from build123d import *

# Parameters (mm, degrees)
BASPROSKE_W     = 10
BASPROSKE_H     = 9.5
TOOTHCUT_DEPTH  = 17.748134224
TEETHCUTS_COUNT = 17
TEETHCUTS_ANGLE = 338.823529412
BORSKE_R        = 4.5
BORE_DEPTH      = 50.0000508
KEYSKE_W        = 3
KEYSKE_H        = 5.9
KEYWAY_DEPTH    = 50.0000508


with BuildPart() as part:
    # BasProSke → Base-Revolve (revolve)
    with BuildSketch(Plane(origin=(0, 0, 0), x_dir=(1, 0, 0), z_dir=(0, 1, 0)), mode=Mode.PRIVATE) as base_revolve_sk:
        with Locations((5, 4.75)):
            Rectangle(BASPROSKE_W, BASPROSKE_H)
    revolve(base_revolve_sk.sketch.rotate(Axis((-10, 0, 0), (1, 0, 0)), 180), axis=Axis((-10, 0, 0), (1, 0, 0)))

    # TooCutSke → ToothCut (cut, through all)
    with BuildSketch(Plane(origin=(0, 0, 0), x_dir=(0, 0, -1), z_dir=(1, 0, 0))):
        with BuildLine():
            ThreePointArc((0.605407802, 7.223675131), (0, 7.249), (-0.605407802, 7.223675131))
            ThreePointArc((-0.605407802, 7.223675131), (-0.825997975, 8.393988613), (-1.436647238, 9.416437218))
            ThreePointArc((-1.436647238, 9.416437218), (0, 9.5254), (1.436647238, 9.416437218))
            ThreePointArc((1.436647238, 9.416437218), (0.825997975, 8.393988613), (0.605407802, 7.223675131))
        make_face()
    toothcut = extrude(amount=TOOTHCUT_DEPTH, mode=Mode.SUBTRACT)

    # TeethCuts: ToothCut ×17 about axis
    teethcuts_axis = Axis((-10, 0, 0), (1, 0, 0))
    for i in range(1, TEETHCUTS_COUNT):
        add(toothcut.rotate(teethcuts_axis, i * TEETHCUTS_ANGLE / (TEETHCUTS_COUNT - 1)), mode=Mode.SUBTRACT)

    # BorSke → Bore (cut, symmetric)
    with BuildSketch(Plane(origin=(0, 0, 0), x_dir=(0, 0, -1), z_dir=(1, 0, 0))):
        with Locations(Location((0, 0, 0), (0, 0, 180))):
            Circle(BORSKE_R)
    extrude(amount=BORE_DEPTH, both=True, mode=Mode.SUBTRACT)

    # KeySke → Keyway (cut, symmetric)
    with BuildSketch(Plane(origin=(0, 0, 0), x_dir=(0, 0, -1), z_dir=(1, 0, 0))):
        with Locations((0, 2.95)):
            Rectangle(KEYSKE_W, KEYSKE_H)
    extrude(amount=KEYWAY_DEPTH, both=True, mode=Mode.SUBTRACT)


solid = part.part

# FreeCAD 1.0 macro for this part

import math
import FreeCAD as App
import Part
import Sketcher
from FreeCAD import Vector

doc = App.newDocument("Part")
body = doc.addObject("PartDesign::Body", "Body")

# Sketch on XZ plane
sketch1 = body.newObject("Sketcher::SketchObject", "Sketch")
sketch1.AttachmentSupport = (doc.getObject("XZ_Plane"), [""])
sketch1.MapMode = "FlatFace"
sketch1.addGeometry([
    Part.LineSegment(Vector(0, -10, 0), Vector(0, 0, 0)),
    Part.LineSegment(Vector(0, 0, 0), Vector(10, 0, 0)),
    Part.LineSegment(Vector(10, 0, 0), Vector(10, -10, 0)),
    Part.LineSegment(Vector(10, -10, 0), Vector(0, -10, 0)),
], False)
sketch1.addConstraint([
    Sketcher.Constraint("Coincident", 0, 2, 1, 1),
    Sketcher.Constraint("Coincident", 1, 2, 2, 1),
    Sketcher.Constraint("Coincident", 2, 2, 3, 1),
    Sketcher.Constraint("Coincident", 3, 2, 0, 1),
    Sketcher.Constraint("Vertical", 0),
    Sketcher.Constraint("Horizontal", 1),
    Sketcher.Constraint("Vertical", 2),
    Sketcher.Constraint("Horizontal", 3),
    Sketcher.Constraint("Coincident", 0, 2, -1, 1),
    Sketcher.Constraint("DistanceX", 1, 1, 1, 2, 10.0),
    Sketcher.Constraint("DistanceY", 0, 1, 0, 2, 9.5),
])
revolution = body.newObject("PartDesign::Revolution", "Revolution")
revolution.Profile = sketch1
revolution.ReferenceAxis = (sketch1, ["H_Axis"])
revolution.Angle = 360

# Sketch on YZ plane
sketch2 = body.newObject("Sketcher::SketchObject", "Sketch001")
sketch2.AttachmentSupport = (doc.getObject("YZ_Plane"), [""])
sketch2.MapMode = "FlatFace"
sketch2.addGeometry([
    Part.ArcOfCircle(Part.Circle(Vector(0, 0, 0), Vector(0, 0, 1), 7.2), math.radians(-4.79), math.radians(4.79)),
    Part.ArcOfCircle(Part.Circle(Vector(7.2, -4, 0), Vector(0, 0, 1), 3.4), math.radians(49), math.radians(89)),
    Part.ArcOfCircle(Part.Circle(Vector(0, 0, 0), Vector(0, 0, 1), 9.5), math.radians(-8.67), math.radians(8.67)),
    Part.ArcOfCircle(Part.Circle(Vector(7.2, 4, 0), Vector(0, 0, 1), 3.4), math.radians(-89), math.radians(-49)),
], False)
sketch2.addConstraint([
    Sketcher.Constraint("Coincident", 0, 1, 1, 2),
    Sketcher.Constraint("Coincident", 1, 1, 2, 1),
    Sketcher.Constraint("Coincident", 2, 2, 3, 2),
    Sketcher.Constraint("Coincident", 3, 1, 0, 2),
    Sketcher.Constraint("Coincident", 0, 3, -1, 1),
    Sketcher.Constraint("Coincident", 2, 3, -1, 1),
    Sketcher.Constraint("Equal", 1, 3),
    Sketcher.Constraint("Symmetric", 1, 3, 3, 3, -1),
    Sketcher.Constraint("Radius", 1, 3.4),
    Sketcher.Constraint("Radius", 0, 7.249),
    Sketcher.Constraint("Radius", 2, 9.5254),
    Sketcher.Constraint("DistanceY", 1, 3, -1, 1, 4.005229),
    Sketcher.Constraint("DistanceX", 1, 3, 0, 1, 0.03488),
])
pocket1 = body.newObject("PartDesign::Pocket", "Pocket")
pocket1.Profile = sketch2
pocket1.Type = "ThroughAll"
pocket1.Reversed = True
doc.recompute()

polarpattern = body.newObject("PartDesign::PolarPattern", "PolarPattern")
polarpattern.Originals = [pocket1]
polarpattern.Axis = (doc.getObject("X_Axis"), [""])
polarpattern.Angle = 360
polarpattern.Occurrences = 17
body.Tip = polarpattern

# Sketch on YZ plane
sketch3 = body.newObject("Sketcher::SketchObject", "Sketch002")
sketch3.AttachmentSupport = (doc.getObject("YZ_Plane"), [""])
sketch3.MapMode = "FlatFace"
sketch3.addGeometry(Part.Circle(Vector(0, 0, 0), Vector(0, 0, 1), 4.5), False)
sketch3.addConstraint([
    Sketcher.Constraint("Coincident", 0, 3, -1, 1),
    Sketcher.Constraint("Diameter", 0, 9.0),
])
pocket2 = body.newObject("PartDesign::Pocket", "Pocket001")
pocket2.Profile = sketch3
pocket2.Length = 100.000102
pocket2.Midplane = True

# Sketch on YZ plane
sketch4 = body.newObject("Sketcher::SketchObject", "Sketch003")
sketch4.AttachmentSupport = (doc.getObject("YZ_Plane"), [""])
sketch4.MapMode = "FlatFace"
sketch4.addGeometry([
    Part.LineSegment(Vector(5.9, 1.5, 0), Vector(0, 1.5, 0)),
    Part.LineSegment(Vector(0, 1.5, 0), Vector(0, -1.5, 0)),
    Part.LineSegment(Vector(0, -1.5, 0), Vector(5.9, -1.5, 0)),
    Part.LineSegment(Vector(5.9, -1.5, 0), Vector(5.9, 1.5, 0)),
], False)
sketch4.addConstraint([
    Sketcher.Constraint("Coincident", 0, 2, 1, 1),
    Sketcher.Constraint("Coincident", 1, 2, 2, 1),
    Sketcher.Constraint("Coincident", 2, 2, 3, 1),
    Sketcher.Constraint("Coincident", 3, 2, 0, 1),
    Sketcher.Constraint("Horizontal", 0),
    Sketcher.Constraint("Vertical", 1),
    Sketcher.Constraint("Horizontal", 2),
    Sketcher.Constraint("Vertical", 3),
    Sketcher.Constraint("Symmetric", 0, 2, 1, 2, -1, 1),
    Sketcher.Constraint("DistanceY", 1, 2, 1, 1, 3.0),
    Sketcher.Constraint("DistanceX", 0, 2, 0, 1, 5.9),
])
pocket3 = body.newObject("PartDesign::Pocket", "Pocket002")
pocket3.Profile = sketch4
pocket3.Length = 100.000102
pocket3.Midplane = True

doc.recompute()
